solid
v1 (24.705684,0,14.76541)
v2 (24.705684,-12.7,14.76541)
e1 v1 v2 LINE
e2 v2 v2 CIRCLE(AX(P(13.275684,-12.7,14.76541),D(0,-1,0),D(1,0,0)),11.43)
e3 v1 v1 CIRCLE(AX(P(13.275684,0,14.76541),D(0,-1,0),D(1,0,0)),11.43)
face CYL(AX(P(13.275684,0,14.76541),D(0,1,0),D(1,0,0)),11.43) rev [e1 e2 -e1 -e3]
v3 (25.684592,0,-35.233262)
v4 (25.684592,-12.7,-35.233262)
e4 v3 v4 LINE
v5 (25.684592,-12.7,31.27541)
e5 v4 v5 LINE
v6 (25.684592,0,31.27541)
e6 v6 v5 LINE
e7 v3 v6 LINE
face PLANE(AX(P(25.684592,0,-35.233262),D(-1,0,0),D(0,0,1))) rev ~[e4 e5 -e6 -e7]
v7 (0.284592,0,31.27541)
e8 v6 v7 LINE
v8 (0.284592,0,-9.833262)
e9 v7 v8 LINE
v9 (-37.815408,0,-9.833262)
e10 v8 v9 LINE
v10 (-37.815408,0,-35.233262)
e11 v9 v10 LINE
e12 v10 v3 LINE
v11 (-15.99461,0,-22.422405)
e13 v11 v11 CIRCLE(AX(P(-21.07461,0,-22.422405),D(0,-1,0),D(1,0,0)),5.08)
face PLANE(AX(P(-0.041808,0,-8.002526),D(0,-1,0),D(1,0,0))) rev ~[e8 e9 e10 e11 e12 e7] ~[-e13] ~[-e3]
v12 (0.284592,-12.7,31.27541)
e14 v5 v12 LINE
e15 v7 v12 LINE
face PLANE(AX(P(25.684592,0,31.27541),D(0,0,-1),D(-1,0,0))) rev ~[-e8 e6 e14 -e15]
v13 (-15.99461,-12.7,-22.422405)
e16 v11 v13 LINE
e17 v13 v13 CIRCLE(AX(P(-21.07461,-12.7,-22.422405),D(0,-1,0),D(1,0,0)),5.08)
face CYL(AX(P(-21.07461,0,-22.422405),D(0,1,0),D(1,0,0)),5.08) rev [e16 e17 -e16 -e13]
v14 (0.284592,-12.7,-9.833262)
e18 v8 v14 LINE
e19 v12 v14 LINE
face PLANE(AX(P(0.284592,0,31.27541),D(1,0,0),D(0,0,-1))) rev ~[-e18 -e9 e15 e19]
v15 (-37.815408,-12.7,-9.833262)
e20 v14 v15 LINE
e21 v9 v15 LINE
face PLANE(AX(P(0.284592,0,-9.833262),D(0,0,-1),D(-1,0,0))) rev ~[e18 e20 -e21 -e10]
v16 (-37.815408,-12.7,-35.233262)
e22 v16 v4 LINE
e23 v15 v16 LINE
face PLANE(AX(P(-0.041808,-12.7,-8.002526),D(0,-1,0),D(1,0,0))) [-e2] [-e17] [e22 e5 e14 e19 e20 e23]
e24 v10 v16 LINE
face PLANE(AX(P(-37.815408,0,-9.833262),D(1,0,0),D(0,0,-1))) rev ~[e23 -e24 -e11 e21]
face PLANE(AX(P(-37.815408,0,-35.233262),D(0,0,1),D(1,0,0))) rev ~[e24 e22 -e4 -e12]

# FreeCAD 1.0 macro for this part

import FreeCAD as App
import Part
import Sketcher
Q = App.Units.Quantity


def add_polygon(sketch, points):
    """Adds a closed chain of lines whose ends are joined by coincident constraints."""
    first, n = sketch.GeometryCount, len(points)
    for a, b in zip(points, points[1:] + points[:1]):
        sketch.addGeometry(Part.LineSegment(App.Vector(*a, 0), App.Vector(*b, 0)), False)
    for i in range(n):
        sketch.addConstraint(Sketcher.Constraint("Coincident", first + i, 2, first + (i + 1) % n, 1))

doc = App.newDocument("Part")
body = doc.addObject("PartDesign::Body", "Body")

# Sketch on XZ plane
sketch1 = body.newObject("Sketcher::SketchObject", "Sketch")
sketch1.AttachmentSupport = (doc.getObject("XZ_Plane"), [""])
sketch1.MapMode = "FlatFace"
add_polygon(sketch1, [(26, 31), (0, 31), (0, -10), (-38, -10), (-38, -35), (26, -35)])  # lines 0-5
sketch1.addGeometry(Part.Circle(App.Vector(-21, -22, 0), App.Vector(0, 0, 1), 5), False)  # 6
sketch1.addGeometry(Part.Circle(App.Vector(13, 15, 0), App.Vector(0, 0, 1), 11), False)  # 7
sketch1.addConstraint(Sketcher.Constraint("Horizontal", 0))
sketch1.addConstraint(Sketcher.Constraint("Vertical", 1))
sketch1.addConstraint(Sketcher.Constraint("Horizontal", 2))
sketch1.addConstraint(Sketcher.Constraint("Vertical", 3))
sketch1.addConstraint(Sketcher.Constraint("Horizontal", 4))
sketch1.addConstraint(Sketcher.Constraint("Vertical", 5))
sketch1.addConstraint(Sketcher.Constraint("Equal", 0, 3))
sketch1.addConstraint(Sketcher.Constraint("Diameter", 6, Q("0.4 in")))
sketch1.addConstraint(Sketcher.Constraint("Diameter", 7, Q("0.9 in")))
sketch1.addConstraint(Sketcher.Constraint("DistanceX", 0, 2, 0, 1, Q("1 in")))
sketch1.addConstraint(Sketcher.Constraint("DistanceX", 2, 2, 2, 1, Q("1.5 in")))
sketch1.addConstraint(Sketcher.Constraint("DistanceY", 7, 3, 0, 2, Q("0.65 in")))
sketch1.addConstraint(Sketcher.Constraint("DistanceX", 6, 3, 0, 2, 21.359202))
sketch1.addConstraint(Sketcher.Constraint("DistanceY", 1, 2, 1, 1, 41.108672))
sketch1.addConstraint(Sketcher.Constraint("DistanceX", 6, 3, -1, 1, 21.07461))
sketch1.addConstraint(Sketcher.Constraint("DistanceY", -1, 1, 7, 3, 14.76541))
sketch1.addConstraint(Sketcher.Constraint("DistanceX", 2, 2, 7, 3, 51.091092))
sketch1.addConstraint(Sketcher.Constraint("DistanceY", 6, 3, -1, 1, 22.422405))
pad1 = body.newObject("PartDesign::Pad", "Pad")
pad1.Profile = sketch1
pad1.Length = Q("0.5 in")

doc.recompute()
